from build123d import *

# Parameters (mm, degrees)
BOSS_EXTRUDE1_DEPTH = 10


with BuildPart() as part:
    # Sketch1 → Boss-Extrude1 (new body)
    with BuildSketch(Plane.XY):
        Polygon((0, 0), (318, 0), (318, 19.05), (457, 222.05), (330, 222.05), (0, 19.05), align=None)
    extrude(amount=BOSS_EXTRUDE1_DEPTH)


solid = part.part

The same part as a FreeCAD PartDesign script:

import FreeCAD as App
import Part
import Sketcher


def add_polygon(sketch, points):
    """Adds a closed chain of lines whose ends are joined by coincident constraints."""
    first, n = sketch.GeometryCount, len(points)
    for a, b in zip(points, points[1:] + points[:1]):
        sketch.addGeometry(Part.LineSegment(App.Vector(*a, 0), App.Vector(*b, 0)), False)
    for i in range(n):
        sketch.addConstraint(Sketcher.Constraint("Coincident", first + i, 2, first + (i + 1) % n, 1))

doc = App.newDocument("Part")
params = doc.addObject("Spreadsheet::Sheet", "Params")
for row, (alias, value) in enumerate([
    ("sketch1_width", "318 mm"),
    ("sketch1_width2", "127 mm"),
    ("sketch1_height", "19.05 mm"),
    ("pad1_length", "10 mm"),
], start=1):
    params.set(f"A{row}", alias)
    params.set(f"B{row}", "=" + value)
    params.setAlias(f"B{row}", alias)

body = doc.addObject("PartDesign::Body", "Body")

# Sketch on XY plane
sketch1 = doc.addObject("Sketcher::SketchObject", "Sketch")
body.addObject(sketch1)
sketch1.AttachmentSupport = (doc.XY_Plane, [""])
sketch1.MapMode = "FlatFace"
add_polygon(sketch1, [(0, 0), (318, 0), (318, 19), (457, 222), (330, 222), (0, 19)])  # lines 0-5
sketch1.addConstraint([
    Sketcher.Constraint("Horizontal", 0),
    Sketcher.Constraint("Vertical", 1),
    Sketcher.Constraint("Horizontal", 3),
    Sketcher.Constraint("Vertical", 5),
    Sketcher.Constraint("Coincident", 5, 2, -1, 1),
    Sketcher.Constraint("Horizontal", 1, 2, 4, 2),
    Sketcher.Constraint("DistanceX", 0, 1, 0, 2, 318.0),
    Sketcher.Constraint("DistanceX", 3, 2, 3, 1, 127.0),
    Sketcher.Constraint("DistanceX", -1, 1, 2, 2, 457.0),
    Sketcher.Constraint("DistanceY", 1, 2, 2, 2, 203.0),
    Sketcher.Constraint("DistanceY", 1, 1, 1, 2, 19.05),
])
sketch1.setExpression("Constraints[12]", "Params.sketch1_width")
sketch1.setExpression("Constraints[13]", "Params.sketch1_width2")
sketch1.setExpression("Constraints[16]", "Params.sketch1_height")
pad1 = doc.addObject("PartDesign::Pad", "Pad")
body.addObject(pad1)
pad1.Profile = sketch1
pad1.setExpression("Length", "Params.pad1_length")

doc.recompute()
